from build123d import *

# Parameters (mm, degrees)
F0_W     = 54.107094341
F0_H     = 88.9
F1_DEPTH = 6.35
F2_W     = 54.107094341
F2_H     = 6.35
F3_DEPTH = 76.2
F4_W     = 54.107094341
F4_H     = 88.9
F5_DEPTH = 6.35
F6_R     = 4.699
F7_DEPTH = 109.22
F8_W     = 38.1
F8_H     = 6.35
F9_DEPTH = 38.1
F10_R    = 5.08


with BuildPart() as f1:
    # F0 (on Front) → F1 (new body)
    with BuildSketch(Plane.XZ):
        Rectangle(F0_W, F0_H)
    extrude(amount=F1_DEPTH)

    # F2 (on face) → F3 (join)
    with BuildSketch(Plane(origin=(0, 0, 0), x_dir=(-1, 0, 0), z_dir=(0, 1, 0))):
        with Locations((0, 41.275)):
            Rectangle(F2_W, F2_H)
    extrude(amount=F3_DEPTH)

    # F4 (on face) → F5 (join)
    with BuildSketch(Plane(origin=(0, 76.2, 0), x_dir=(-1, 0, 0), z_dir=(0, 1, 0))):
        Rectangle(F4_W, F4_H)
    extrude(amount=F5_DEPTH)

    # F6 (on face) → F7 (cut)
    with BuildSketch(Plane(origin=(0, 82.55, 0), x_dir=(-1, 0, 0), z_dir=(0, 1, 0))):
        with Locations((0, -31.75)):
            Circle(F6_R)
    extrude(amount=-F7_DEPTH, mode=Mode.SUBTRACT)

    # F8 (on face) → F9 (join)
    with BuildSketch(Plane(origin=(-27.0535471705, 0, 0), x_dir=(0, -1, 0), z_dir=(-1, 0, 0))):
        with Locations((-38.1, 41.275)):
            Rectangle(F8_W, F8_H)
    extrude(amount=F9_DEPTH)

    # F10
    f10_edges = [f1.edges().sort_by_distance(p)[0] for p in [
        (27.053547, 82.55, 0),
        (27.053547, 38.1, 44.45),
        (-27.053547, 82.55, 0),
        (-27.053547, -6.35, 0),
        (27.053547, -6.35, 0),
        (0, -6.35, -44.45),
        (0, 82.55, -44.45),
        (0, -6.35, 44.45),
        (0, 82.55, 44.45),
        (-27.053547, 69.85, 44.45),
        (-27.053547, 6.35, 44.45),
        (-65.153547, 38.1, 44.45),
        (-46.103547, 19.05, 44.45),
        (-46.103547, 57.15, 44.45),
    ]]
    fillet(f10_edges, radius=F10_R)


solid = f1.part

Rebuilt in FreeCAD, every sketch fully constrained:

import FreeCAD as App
import Part
import Sketcher
from FreeCAD import Vector
Q = App.Units.Quantity


def edges_at(feature, points):
    """Names of the edges that pass closest to the given points."""
    edges = feature.Shape.Edges
    near = lambda p: min(range(len(edges)), key=lambda i: edges[i].distToShape(Part.Vertex(*p))[0])
    return sorted({f"Edge{near(p) + 1}" for p in points})


def add_polygon(sketch, points):
    """Adds a closed chain of lines whose ends are joined by coincident constraints."""
    first, n = sketch.GeometryCount, len(points)
    for a, b in zip(points, points[1:] + points[:1]):
        sketch.addGeometry(Part.LineSegment(App.Vector(*a, 0), App.Vector(*b, 0)), False)
    for i in range(n):
        sketch.addConstraint(Sketcher.Constraint("Coincident", first + i, 2, first + (i + 1) % n, 1))

doc = App.newDocument("Part")
body = doc.addObject("PartDesign::Body", "Body")

# Sketch on XZ plane
sketch1 = doc.addObject("Sketcher::SketchObject", "Sketch")
body.addObject(sketch1)
sketch1.AttachmentSupport = (doc.XZ_Plane, [""])
sketch1.MapMode = "FlatFace"
add_polygon(sketch1, [(-27, 44), (-27, -44), (27, -44), (27, 44)])  # lines 0-3
sketch1.addConstraint([
    Sketcher.Constraint("Vertical", 0),
    Sketcher.Constraint("Horizontal", 1),
    Sketcher.Constraint("Vertical", 2),
    Sketcher.Constraint("Horizontal", 3),
    Sketcher.Constraint("Symmetric", 0, 2, 2, 2, -1, 1),
    Sketcher.Constraint("DistanceY", 0, 2, 0, 1, Q("3.5 in")),
    Sketcher.Constraint("DistanceX", 1, 1, 1, 2, 54.107094),
])
pad1 = doc.addObject("PartDesign::Pad", "Pad")
body.addObject(pad1)
pad1.Profile = sketch1
pad1.Length = Q("0.25 in")

# Sketch on XZ plane
sketch2 = doc.addObject("Sketcher::SketchObject", "Sketch001")
body.addObject(sketch2)
sketch2.AttachmentSupport = (doc.XZ_Plane, [""])
sketch2.MapMode = "FlatFace"
add_polygon(sketch2, [(27, 44), (27, 38), (-27, 38), (-27, 44)])  # lines 0-3
sketch2.addConstraint([
    Sketcher.Constraint("Vertical", 0),
    Sketcher.Constraint("Horizontal", 1),
    Sketcher.Constraint("Vertical", 2),
    Sketcher.Constraint("Horizontal", 3),
    Sketcher.Constraint("DistanceY", 0, 2, 0, 1, Q("0.25 in")),
    Sketcher.Constraint("DistanceY", -1, 1, 0, 2, Q("1.5 in")),
    Sketcher.Constraint("DistanceX", 1, 2, 1, 1, 54.107094),
    Sketcher.Constraint("DistanceX", -1, 1, 0, 2, 27.053547),
])
pad2 = doc.addObject("PartDesign::Pad", "Pad001")
body.addObject(pad2)
pad2.Profile = sketch2
pad2.Length = Q("3 in")
pad2.Reversed = True

# Sketch on XZ plane
sketch3 = doc.addObject("Sketcher::SketchObject", "Sketch002")
body.addObject(sketch3)
sketch3.AttachmentSupport = (doc.XZ_Plane, [""])
sketch3.MapMode = "FlatFace"
sketch3.AttachmentOffset = App.Placement(Vector(0, 0, -3 * 25.4), App.Rotation())
add_polygon(sketch3, [(27, 44), (27, -44), (-27, -44), (-27, 44)])  # lines 0-3
sketch3.addConstraint([
    Sketcher.Constraint("Vertical", 0),
    Sketcher.Constraint("Horizontal", 1),
    Sketcher.Constraint("Vertical", 2),
    Sketcher.Constraint("Horizontal", 3),
    Sketcher.Constraint("Symmetric", 0, 2, 2, 2, -1, 1),
    Sketcher.Constraint("DistanceY", 0, 2, 0, 1, Q("3.5 in")),
    Sketcher.Constraint("DistanceX", 1, 2, 1, 1, 54.107094),
])
pad3 = doc.addObject("PartDesign::Pad", "Pad002")
body.addObject(pad3)
pad3.Profile = sketch3
pad3.Length = Q("0.25 in")
pad3.Reversed = True

# Sketch on XZ plane
sketch4 = doc.addObject("Sketcher::SketchObject", "Sketch003")
body.addObject(sketch4)
sketch4.AttachmentSupport = (doc.XZ_Plane, [""])
sketch4.MapMode = "FlatFace"
sketch4.AttachmentOffset = App.Placement(Vector(0, 0, -3.25 * 25.4), App.Rotation())
sketch4.addGeometry(Part.Circle(Vector(0, -31.8, 0), Vector(0, 0, 1), 4.7), False)
sketch4.addConstraint([
    Sketcher.Constraint("PointOnObject", 0, 3, -2),
    Sketcher.Constraint("Diameter", 0, Q("0.37 in")),
    Sketcher.Constraint("DistanceY", 0, 3, -1, 1, Q("1.25 in")),
])
pocket1 = doc.addObject("PartDesign::Pocket", "Pocket")
body.addObject(pocket1)
pocket1.Profile = sketch4
pocket1.Length = Q("4.3 in")
pocket1.Reversed = True

# Sketch on YZ plane
sketch5 = doc.addObject("Sketcher::SketchObject", "Sketch004")
body.addObject(sketch5)
sketch5.AttachmentSupport = (doc.YZ_Plane, [""])
sketch5.MapMode = "FlatFace"
sketch5.AttachmentOffset = App.Placement(Vector(0, 0, -27.053547), App.Rotation())
add_polygon(sketch5, [(57, 44), (57, 38), (19, 38), (19, 44)])  # lines 0-3
sketch5.addConstraint([
    Sketcher.Constraint("Vertical", 0),
    Sketcher.Constraint("Horizontal", 1),
    Sketcher.Constraint("Vertical", 2),
    Sketcher.Constraint("Horizontal", 3),
    Sketcher.Constraint("DistanceX", 1, 2, 1, 1, Q("1.5 in")),
    Sketcher.Constraint("DistanceY", 0, 2, 0, 1, Q("0.25 in")),
    Sketcher.Constraint("DistanceY", -1, 1, 0, 2, Q("1.5 in")),
    Sketcher.Constraint("DistanceX", -1, 1, 0, 2, Q("2.25 in")),
])
pad4 = doc.addObject("PartDesign::Pad", "Pad003")
body.addObject(pad4)
pad4.Profile = sketch5
pad4.Length = Q("1.5 in")
pad4.Reversed = True
doc.recompute()

fillet = doc.addObject("PartDesign::Fillet", "Fillet")
body.addObject(fillet)
fillet.Base = (pad4, edges_at(pad4, [
    (27.054, 82.55, 0),
    (27.054, 38.1, 44.45),
    (-27.054, 82.55, 0),
    (-27.054, -6.35, 0),
    (27.054, -6.35, 0),
    (0, -6.35, -44.45),
    (0, 82.55, -44.45),
    (0, -6.35, 44.45),
    (0, 82.55, 44.45),
    (-27.054, 69.85, 44.45),
    (-27.054, 6.35, 44.45),
    (-65.154, 38.1, 44.45),
    (-46.104, 19.05, 44.45),
    (-46.104, 57.15, 44.45),
]))
fillet.Radius = Q("0.2 in")

doc.recompute()
